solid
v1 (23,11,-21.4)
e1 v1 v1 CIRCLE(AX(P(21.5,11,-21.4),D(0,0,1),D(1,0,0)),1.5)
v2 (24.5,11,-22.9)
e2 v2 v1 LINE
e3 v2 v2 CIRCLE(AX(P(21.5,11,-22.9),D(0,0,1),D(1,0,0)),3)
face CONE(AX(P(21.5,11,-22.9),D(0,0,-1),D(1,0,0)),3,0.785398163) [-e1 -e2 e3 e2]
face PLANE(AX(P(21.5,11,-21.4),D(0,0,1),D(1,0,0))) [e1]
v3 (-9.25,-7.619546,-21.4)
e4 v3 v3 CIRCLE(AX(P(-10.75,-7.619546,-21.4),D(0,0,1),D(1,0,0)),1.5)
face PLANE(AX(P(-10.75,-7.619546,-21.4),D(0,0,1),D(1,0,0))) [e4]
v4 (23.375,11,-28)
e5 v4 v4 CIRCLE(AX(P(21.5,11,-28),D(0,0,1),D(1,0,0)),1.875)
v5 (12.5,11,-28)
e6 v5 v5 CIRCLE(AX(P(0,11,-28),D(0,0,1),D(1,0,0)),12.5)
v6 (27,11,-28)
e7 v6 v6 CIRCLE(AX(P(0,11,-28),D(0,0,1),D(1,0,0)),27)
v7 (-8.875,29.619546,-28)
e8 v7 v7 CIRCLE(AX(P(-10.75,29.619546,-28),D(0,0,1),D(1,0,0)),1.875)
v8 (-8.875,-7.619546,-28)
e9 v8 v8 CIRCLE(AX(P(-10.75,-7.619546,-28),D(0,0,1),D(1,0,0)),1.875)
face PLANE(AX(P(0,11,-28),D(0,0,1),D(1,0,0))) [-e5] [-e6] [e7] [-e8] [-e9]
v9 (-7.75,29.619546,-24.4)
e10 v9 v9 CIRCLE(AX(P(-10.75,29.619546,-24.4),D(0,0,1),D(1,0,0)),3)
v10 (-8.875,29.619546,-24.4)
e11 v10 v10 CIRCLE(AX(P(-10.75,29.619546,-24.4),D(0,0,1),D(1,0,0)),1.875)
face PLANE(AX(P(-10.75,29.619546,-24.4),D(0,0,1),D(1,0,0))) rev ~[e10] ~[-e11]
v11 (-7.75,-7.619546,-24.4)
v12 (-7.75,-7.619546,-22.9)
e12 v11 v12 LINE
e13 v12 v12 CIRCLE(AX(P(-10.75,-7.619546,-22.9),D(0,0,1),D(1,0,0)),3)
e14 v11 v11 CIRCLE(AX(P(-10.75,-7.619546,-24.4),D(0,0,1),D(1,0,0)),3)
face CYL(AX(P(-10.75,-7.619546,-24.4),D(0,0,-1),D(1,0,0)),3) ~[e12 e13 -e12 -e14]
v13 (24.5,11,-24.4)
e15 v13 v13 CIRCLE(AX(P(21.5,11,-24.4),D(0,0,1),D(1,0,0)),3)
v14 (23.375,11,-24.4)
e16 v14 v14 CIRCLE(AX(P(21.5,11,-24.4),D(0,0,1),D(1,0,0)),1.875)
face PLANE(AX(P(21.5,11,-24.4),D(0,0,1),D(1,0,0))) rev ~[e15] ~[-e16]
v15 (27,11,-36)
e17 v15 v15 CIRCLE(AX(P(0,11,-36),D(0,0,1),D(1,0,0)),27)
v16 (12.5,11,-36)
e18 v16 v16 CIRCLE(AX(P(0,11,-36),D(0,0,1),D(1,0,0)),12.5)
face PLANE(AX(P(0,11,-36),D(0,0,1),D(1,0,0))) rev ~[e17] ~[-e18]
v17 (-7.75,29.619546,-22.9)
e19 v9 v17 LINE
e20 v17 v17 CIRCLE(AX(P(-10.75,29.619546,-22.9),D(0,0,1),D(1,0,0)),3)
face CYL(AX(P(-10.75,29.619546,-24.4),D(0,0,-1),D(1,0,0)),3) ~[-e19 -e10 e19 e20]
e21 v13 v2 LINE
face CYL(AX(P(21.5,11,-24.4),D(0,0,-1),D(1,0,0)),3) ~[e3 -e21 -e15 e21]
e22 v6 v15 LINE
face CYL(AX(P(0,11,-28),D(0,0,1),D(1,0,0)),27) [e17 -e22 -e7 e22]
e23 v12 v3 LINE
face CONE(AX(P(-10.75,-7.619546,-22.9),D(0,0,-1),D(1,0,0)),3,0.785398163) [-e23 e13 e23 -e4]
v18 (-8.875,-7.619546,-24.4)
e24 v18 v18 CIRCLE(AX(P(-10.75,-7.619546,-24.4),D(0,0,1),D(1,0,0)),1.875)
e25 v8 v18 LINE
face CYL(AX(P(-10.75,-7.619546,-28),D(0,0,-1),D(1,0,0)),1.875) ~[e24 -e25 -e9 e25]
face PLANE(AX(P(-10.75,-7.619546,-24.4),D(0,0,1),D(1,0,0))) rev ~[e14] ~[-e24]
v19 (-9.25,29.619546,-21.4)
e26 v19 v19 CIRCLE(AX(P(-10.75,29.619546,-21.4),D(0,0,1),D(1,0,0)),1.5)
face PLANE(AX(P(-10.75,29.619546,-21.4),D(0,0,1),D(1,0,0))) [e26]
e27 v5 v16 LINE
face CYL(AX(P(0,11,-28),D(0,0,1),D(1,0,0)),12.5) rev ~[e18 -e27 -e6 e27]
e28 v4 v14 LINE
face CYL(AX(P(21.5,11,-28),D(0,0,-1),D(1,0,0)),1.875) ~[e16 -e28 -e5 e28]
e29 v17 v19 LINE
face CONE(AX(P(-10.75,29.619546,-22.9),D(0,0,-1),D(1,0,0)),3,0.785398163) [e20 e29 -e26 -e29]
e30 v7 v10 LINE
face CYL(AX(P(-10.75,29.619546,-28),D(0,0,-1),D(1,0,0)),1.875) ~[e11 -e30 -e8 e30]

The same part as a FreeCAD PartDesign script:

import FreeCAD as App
import Part
import Sketcher


def edges_at(feature, points):
    """Names of the edges that pass closest to the given points."""
    edges = feature.Shape.Edges
    near = lambda p: min(range(len(edges)), key=lambda i: edges[i].distToShape(Part.Vertex(*p))[0])
    return sorted({f"Edge{near(p) + 1}" for p in points})

doc = App.newDocument("Part")
body = doc.addObject("PartDesign::Body", "Body")

# Sketch on XY plane
sketch1 = doc.addObject("Sketcher::SketchObject", "Sketch")
body.addObject(sketch1)
sketch1.AttachmentSupport = (doc.XY_Plane, [""])
sketch1.MapMode = "FlatFace"
sketch1.addGeometry([
    Part.Circle(App.Vector(0, 0, 0), App.Vector(0, 0, 1), 27),
    Part.Circle(App.Vector(0, 0, 0), App.Vector(0, 0, 1), 12),
], False)
sketch1.addConstraint([
    Sketcher.Constraint("Coincident", 0, 3, -1, 1),
    Sketcher.Constraint("Coincident", 1, 3, -1, 1),
    Sketcher.Constraint("Diameter", 0, 54.0),
    Sketcher.Constraint("Diameter", 1, 25.0),
])
pad1 = doc.addObject("PartDesign::Pad", "Pad")
body.addObject(pad1)
pad1.Profile = sketch1
pad1.Length = 8
pad1.Reversed = True

# Sketch on XY plane
sketch2 = doc.addObject("Sketcher::SketchObject", "Sketch001")
body.addObject(sketch2)
sketch2.AttachmentSupport = (doc.XY_Plane, [""])
sketch2.MapMode = "FlatFace"
sketch2.addGeometry([
    Part.Circle(App.Vector(-10.8, 18.6, 0), App.Vector(0, 0, 1), 1.9),
    Part.Circle(App.Vector(-10.8, -18.6, 0), App.Vector(0, 0, 1), 1.9),
    Part.Circle(App.Vector(21.5, 0, 0), App.Vector(0, 0, 1), 1.9),
], False)
sketch2.addConstraint([
    Sketcher.Constraint("Equal", 0, 1),
    Sketcher.Constraint("Equal", 1, 2),
    Sketcher.Constraint("Symmetric", 0, 3, 1, 3, -1),
    Sketcher.Constraint("PointOnObject", 2, 3, -1),
    Sketcher.Constraint("Diameter", 0, 3.75),
    Sketcher.Constraint("DistanceX", -1, 1, 2, 3, 21.5),
    Sketcher.Constraint("DistanceX", 0, 3, -1, 1, 10.75),
    Sketcher.Constraint("DistanceY", -1, 1, 0, 3, 18.619546),
])
pad2 = doc.addObject("PartDesign::Pad", "Pad001")
body.addObject(pad2)
pad2.Profile = sketch2
pad2.Length = 3.6

# Sketch on XY plane
sketch3 = doc.addObject("Sketcher::SketchObject", "Sketch002")
body.addObject(sketch3)
sketch3.AttachmentSupport = (doc.XY_Plane, [""])
sketch3.MapMode = "FlatFace"
sketch3.AttachmentOffset = App.Placement(App.Vector(0, 0, 3.6), App.Rotation())
sketch3.addGeometry([
    Part.Circle(App.Vector(-10.8, 18.6, 0), App.Vector(0, 0, 1), 3),
    Part.Circle(App.Vector(21.5, 0, 0), App.Vector(0, 0, 1), 3),
    Part.Circle(App.Vector(-10.8, -18.6, 0), App.Vector(0, 0, 1), 3),
], False)
sketch3.addConstraint([
    Sketcher.Constraint("Equal", 0, 1),
    Sketcher.Constraint("Equal", 1, 2),
    Sketcher.Constraint("Symmetric", 0, 3, 2, 3, -1),
    Sketcher.Constraint("PointOnObject", 1, 3, -1),
    Sketcher.Constraint("Diameter", 0, 6.0),
    Sketcher.Constraint("DistanceX", -1, 1, 1, 3, 21.5),
    Sketcher.Constraint("DistanceX", 0, 3, -1, 1, 10.75),
    Sketcher.Constraint("DistanceY", -1, 1, 0, 3, 18.619546),
])
pad3 = doc.addObject("PartDesign::Pad", "Pad002")
body.addObject(pad3)
pad3.Profile = sketch3
pad3.Length = 3
doc.recompute()

chamfer = doc.addObject("PartDesign::Chamfer", "Chamfer")
body.addObject(chamfer)
chamfer.Base = (pad3, edges_at(pad3, [(18.5, 0, 6.6), (-13.75, 18.62, 6.6), (-13.75, -18.62, 6.6)]))
chamfer.Size = 1.5
body2 = doc.addObject("PartDesign::Body", "Body001")
doc.recompute()

body.Placement = App.Placement(App.Vector(0, 11, -28), App.Rotation(App.Vector(0, 0, 1), 0))
boolean = doc.addObject("PartDesign::Boolean", "Boolean")
body2.addObject(boolean)
boolean.Type = "Fuse"
boolean.addObjects([body])

doc.recompute()
